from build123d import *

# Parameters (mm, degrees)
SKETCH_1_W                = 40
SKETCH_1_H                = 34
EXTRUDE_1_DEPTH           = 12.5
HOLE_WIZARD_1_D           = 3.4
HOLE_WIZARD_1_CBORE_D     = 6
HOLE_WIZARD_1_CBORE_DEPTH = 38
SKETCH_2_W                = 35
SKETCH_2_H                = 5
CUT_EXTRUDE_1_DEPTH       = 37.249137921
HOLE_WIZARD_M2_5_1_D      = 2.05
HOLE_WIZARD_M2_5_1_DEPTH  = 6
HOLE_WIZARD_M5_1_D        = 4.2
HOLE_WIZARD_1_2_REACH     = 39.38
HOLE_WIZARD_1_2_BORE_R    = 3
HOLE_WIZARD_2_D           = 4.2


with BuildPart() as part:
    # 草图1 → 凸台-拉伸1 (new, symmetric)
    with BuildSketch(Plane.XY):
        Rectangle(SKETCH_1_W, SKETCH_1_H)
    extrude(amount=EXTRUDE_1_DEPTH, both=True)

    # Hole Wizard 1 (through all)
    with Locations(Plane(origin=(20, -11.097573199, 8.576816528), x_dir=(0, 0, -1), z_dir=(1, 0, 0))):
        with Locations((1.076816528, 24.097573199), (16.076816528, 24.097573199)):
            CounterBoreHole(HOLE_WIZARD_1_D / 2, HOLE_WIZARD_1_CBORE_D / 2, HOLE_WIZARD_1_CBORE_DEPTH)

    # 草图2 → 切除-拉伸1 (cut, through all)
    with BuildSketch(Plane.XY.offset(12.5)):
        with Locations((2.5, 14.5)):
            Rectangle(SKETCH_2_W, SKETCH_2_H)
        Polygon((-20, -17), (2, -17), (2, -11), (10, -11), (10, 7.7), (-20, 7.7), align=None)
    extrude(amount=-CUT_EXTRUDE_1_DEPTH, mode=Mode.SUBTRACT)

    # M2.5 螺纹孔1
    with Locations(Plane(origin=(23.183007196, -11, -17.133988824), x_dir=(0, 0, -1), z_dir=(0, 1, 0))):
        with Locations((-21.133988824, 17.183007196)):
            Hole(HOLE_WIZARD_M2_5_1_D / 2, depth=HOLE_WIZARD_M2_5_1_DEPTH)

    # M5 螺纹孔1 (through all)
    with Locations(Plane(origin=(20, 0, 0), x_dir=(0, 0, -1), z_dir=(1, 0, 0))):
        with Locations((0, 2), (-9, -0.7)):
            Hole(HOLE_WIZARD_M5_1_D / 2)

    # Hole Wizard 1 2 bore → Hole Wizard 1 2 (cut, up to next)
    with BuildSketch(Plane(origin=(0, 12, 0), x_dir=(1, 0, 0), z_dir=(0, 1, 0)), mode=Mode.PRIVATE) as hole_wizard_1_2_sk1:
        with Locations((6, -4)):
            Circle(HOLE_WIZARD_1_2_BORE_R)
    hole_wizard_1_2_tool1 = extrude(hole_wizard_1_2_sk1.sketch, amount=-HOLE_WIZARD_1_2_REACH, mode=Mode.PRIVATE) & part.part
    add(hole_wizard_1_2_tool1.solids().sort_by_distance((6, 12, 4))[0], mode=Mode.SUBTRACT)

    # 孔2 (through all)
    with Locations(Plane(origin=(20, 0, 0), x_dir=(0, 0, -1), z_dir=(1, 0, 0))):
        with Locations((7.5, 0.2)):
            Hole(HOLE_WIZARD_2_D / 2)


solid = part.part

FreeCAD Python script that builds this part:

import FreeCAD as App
import Part
import Sketcher

doc = App.newDocument("Part")
params = doc.addObject("Spreadsheet::Sheet", "Params")
for row, (alias, value) in enumerate([
    ("sketch1_width", "40 mm"),
    ("sketch1_height", "34 mm"),
    ("pad1_length", "25 mm"),
    ("sketch2_diameter", "3.4 mm"),
    ("hole_diameter", "3.4 mm"),
    ("hole_cbore_diameter", "6 mm"),
    ("hole_cbore_depth", "38 mm"),
    ("sketch3_width", "35 mm"),
    ("sketch3_width2", "22 mm"),
    ("sketch3_width3", "8 mm"),
    ("sketch3_height", "5 mm"),
    ("sketch3_height2", "6 mm"),
    ("sketch4_diameter", "2.05 mm"),
    ("hole2_diameter", "2.05 mm"),
    ("hole2_depth", "6 mm"),
    ("sketch5_diameter", "4.2 mm"),
    ("hole3_diameter", "4.2 mm"),
    ("sketch6_diameter", "6 mm"),
    ("sketch7_diameter", "4.2 mm"),
    ("hole4_diameter", "4.2 mm"),
], start=1):
    params.set(f"A{row}", alias)
    params.set(f"B{row}", "=" + value)
    params.setAlias(f"B{row}", alias)

body = doc.addObject("PartDesign::Body", "Body")

sketch1 = doc.addObject("Sketcher::SketchObject", "Sketch")
body.addObject(sketch1)
sketch1.AttachmentSupport = (doc.XY_Plane, [""])
sketch1.MapMode = "FlatFace"
sketch1.addGeometry([
    Part.LineSegment(App.Vector(-20, 17, 0), App.Vector(-20, -17, 0)),
    Part.LineSegment(App.Vector(-20, -17, 0), App.Vector(20, -17, 0)),
    Part.LineSegment(App.Vector(20, -17, 0), App.Vector(20, 17, 0)),
    Part.LineSegment(App.Vector(20, 17, 0), App.Vector(-20, 17, 0)),
], False)
sketch1.addConstraint([
    Sketcher.Constraint("Coincident", 0, 2, 1, 1),
    Sketcher.Constraint("Coincident", 1, 2, 2, 1),
    Sketcher.Constraint("Coincident", 2, 2, 3, 1),
    Sketcher.Constraint("Coincident", 3, 2, 0, 1),
    Sketcher.Constraint("Vertical", 0),
    Sketcher.Constraint("Horizontal", 1),
    Sketcher.Constraint("Vertical", 2),
    Sketcher.Constraint("Horizontal", 3),
    Sketcher.Constraint("Symmetric", 0, 2, 2, 2, -1, 1),
    Sketcher.Constraint("DistanceX", 1, 1, 1, 2, 40.0),
    Sketcher.Constraint("DistanceY", 0, 2, 0, 1, 34.0),
])
sketch1.setExpression("Constraints[9]", "Params.sketch1_width")
sketch1.setExpression("Constraints[10]", "Params.sketch1_height")
pad1 = doc.addObject("PartDesign::Pad", "Pad")
body.addObject(pad1)
pad1.Profile = sketch1
pad1.setExpression("Length", "Params.pad1_length")
pad1.Midplane = True

sketch2 = doc.addObject("Sketcher::SketchObject", "Sketch001")
body.addObject(sketch2)
sketch2.AttachmentSupport = (doc.YZ_Plane, [""])
sketch2.MapMode = "FlatFace"
sketch2.AttachmentOffset = App.Placement(App.Vector(0, 0, 20), App.Rotation())
sketch2.addGeometry([
    Part.Circle(App.Vector(13, 7.5, 0), App.Vector(0, 0, 1), 1.7),
    Part.Circle(App.Vector(13, -7.5, 0), App.Vector(0, 0, 1), 1.7),
], False)
sketch2.addConstraint([
    Sketcher.Constraint("Equal", 0, 1),
    Sketcher.Constraint("Symmetric", 0, 3, 1, 3, -1),
    Sketcher.Constraint("Diameter", 0, 3.4),
    Sketcher.Constraint("DistanceX", -1, 1, 0, 3, 13.0),
    Sketcher.Constraint("DistanceY", 1, 3, 0, 3, 15.0),
])
sketch2.setExpression("Constraints[2]", "Params.sketch2_diameter")
doc.recompute()
hole = doc.addObject("PartDesign::Hole", "Hole")
body.addObject(hole)
hole.Profile = sketch2
hole.ThreadType = "None"
hole.setExpression("Diameter", "Params.hole_diameter")
hole.DepthType = "ThroughAll"
hole.HoleCutType = "Counterbore"
hole.setExpression("HoleCutDiameter", "Params.hole_cbore_diameter")
hole.setExpression("HoleCutDepth", "Params.hole_cbore_depth")

sketch3 = doc.addObject("Sketcher::SketchObject", "Sketch002")
body.addObject(sketch3)
sketch3.AttachmentSupport = (doc.XY_Plane, [""])
sketch3.MapMode = "FlatFace"
sketch3.AttachmentOffset = App.Placement(App.Vector(0, 0, 12.5), App.Rotation())
sketch3.addGeometry([
    Part.LineSegment(App.Vector(-15, 17, 0), App.Vector(-15, 12, 0)),
    Part.LineSegment(App.Vector(-15, 12, 0), App.Vector(20, 12, 0)),
    Part.LineSegment(App.Vector(20, 12, 0), App.Vector(20, 17, 0)),
    Part.LineSegment(App.Vector(20, 17, 0), App.Vector(-15, 17, 0)),
    Part.LineSegment(App.Vector(-20, -17, 0), App.Vector(2, -17, 0)),
    Part.LineSegment(App.Vector(2, -17, 0), App.Vector(2, -11, 0)),
    Part.LineSegment(App.Vector(2, -11, 0), App.Vector(10, -11, 0)),
    Part.LineSegment(App.Vector(10, -11, 0), App.Vector(10, 7.7, 0)),
    Part.LineSegment(App.Vector(10, 7.7, 0), App.Vector(-20, 7.7, 0)),
    Part.LineSegment(App.Vector(-20, 7.7, 0), App.Vector(-20, -17, 0)),
], False)
sketch3.addConstraint([
    Sketcher.Constraint("Coincident", 0, 2, 1, 1),
    Sketcher.Constraint("Coincident", 1, 2, 2, 1),
    Sketcher.Constraint("Coincident", 2, 2, 3, 1),
    Sketcher.Constraint("Coincident", 3, 2, 0, 1),
    Sketcher.Constraint("Coincident", 4, 2, 5, 1),
    Sketcher.Constraint("Coincident", 5, 2, 6, 1),
    Sketcher.Constraint("Coincident", 6, 2, 7, 1),
    Sketcher.Constraint("Coincident", 7, 2, 8, 1),
    Sketcher.Constraint("Coincident", 8, 2, 9, 1),
    Sketcher.Constraint("Coincident", 9, 2, 4, 1),
    Sketcher.Constraint("Vertical", 0),
    Sketcher.Constraint("Horizontal", 1),
    Sketcher.Constraint("Vertical", 2),
    Sketcher.Constraint("Horizontal", 3),
    Sketcher.Constraint("Horizontal", 4),
    Sketcher.Constraint("Vertical", 5),
    Sketcher.Constraint("Horizontal", 6),
    Sketcher.Constraint("Vertical", 7),
    Sketcher.Constraint("Horizontal", 8),
    Sketcher.Constraint("Vertical", 9),
    Sketcher.Constraint("Symmetric", 2, 2, 9, 2, -1, 1),
    Sketcher.Constraint("DistanceX", 1, 1, 1, 2, 35.0),
    Sketcher.Constraint("DistanceX", 4, 1, 4, 2, 22.0),
    Sketcher.Constraint("DistanceX", 6, 1, 6, 2, 8.0),
    Sketcher.Constraint("DistanceY", 0, 2, 0, 1, 5.0),
    Sketcher.Constraint("DistanceY", 5, 1, 5, 2, 6.0),
    Sketcher.Constraint("DistanceY", 7, 1, 7, 2, 18.7),
    Sketcher.Constraint("DistanceX", 0, 2, -1, 1, 15.0),
    Sketcher.Constraint("DistanceY", -1, 1, 0, 2, 12.0),
])
sketch3.setExpression("Constraints[21]", "Params.sketch3_width")
sketch3.setExpression("Constraints[22]", "Params.sketch3_width2")
sketch3.setExpression("Constraints[23]", "Params.sketch3_width3")
sketch3.setExpression("Constraints[24]", "Params.sketch3_height")
sketch3.setExpression("Constraints[25]", "Params.sketch3_height2")
pocket1 = doc.addObject("PartDesign::Pocket", "Pocket")
body.addObject(pocket1)
pocket1.Profile = sketch3
pocket1.Type = "ThroughAll"

sketch4 = doc.addObject("Sketcher::SketchObject", "Sketch003")
body.addObject(sketch4)
sketch4.AttachmentSupport = (doc.XZ_Plane, [""])
sketch4.MapMode = "FlatFace"
sketch4.AttachmentOffset = App.Placement(App.Vector(0, 0, 11), App.Rotation())
sketch4.addGeometry(Part.Circle(App.Vector(6, 4, 0), App.Vector(0, 0, 1), 1.025), False)
sketch4.addConstraint([
    Sketcher.Constraint("Diameter", 0, 2.05),
    Sketcher.Constraint("DistanceX", -1, 1, 0, 3, 6.0),
    Sketcher.Constraint("DistanceY", -1, 1, 0, 3, 4.0),
])
sketch4.setExpression("Constraints[0]", "Params.sketch4_diameter")
doc.recompute()
hole2 = doc.addObject("PartDesign::Hole", "Hole001")
body.addObject(hole2)
hole2.Profile = sketch4
hole2.ThreadType = "None"
hole2.setExpression("Diameter", "Params.hole2_diameter")
hole2.DepthType = "Dimension"
hole2.setExpression("Depth", "Params.hole2_depth")
hole2.DrillPoint = "Flat"
hole2.Reversed = True

sketch5 = doc.addObject("Sketcher::SketchObject", "Sketch004")
body.addObject(sketch5)
sketch5.AttachmentSupport = (doc.YZ_Plane, [""])
sketch5.MapMode = "FlatFace"
sketch5.AttachmentOffset = App.Placement(App.Vector(0, 0, 20), App.Rotation())
sketch5.addGeometry([
    Part.Circle(App.Vector(2, 0, 0), App.Vector(0, 0, 1), 2.1),
    Part.Circle(App.Vector(-0.7, 9, 0), App.Vector(0, 0, 1), 2.1),
], False)
sketch5.addConstraint([
    Sketcher.Constraint("Equal", 0, 1),
    Sketcher.Constraint("PointOnObject", 0, 3, -1),
    Sketcher.Constraint("Diameter", 0, 4.2),
    Sketcher.Constraint("DistanceX", -1, 1, 0, 3, 2.0),
    Sketcher.Constraint("DistanceY", -1, 1, 1, 3, 9.0),
    Sketcher.Constraint("DistanceX", 1, 3, -1, 1, 0.7),
])
sketch5.setExpression("Constraints[2]", "Params.sketch5_diameter")
doc.recompute()
hole3 = doc.addObject("PartDesign::Hole", "Hole002")
body.addObject(hole3)
hole3.Profile = sketch5
hole3.ThreadType = "None"
hole3.setExpression("Diameter", "Params.hole3_diameter")
hole3.DepthType = "ThroughAll"

sketch6 = doc.addObject("Sketcher::SketchObject", "Sketch005")
body.addObject(sketch6)
sketch6.AttachmentSupport = (doc.XZ_Plane, [""])
sketch6.MapMode = "FlatFace"
sketch6.AttachmentOffset = App.Placement(App.Vector(0, 0, -12), App.Rotation())
sketch6.addGeometry(Part.Circle(App.Vector(6, 4, 0), App.Vector(0, 0, 1), 3), False)
sketch6.addConstraint([
    Sketcher.Constraint("Diameter", 0, 6.0),
    Sketcher.Constraint("DistanceX", -1, 1, 0, 3, 6.0),
    Sketcher.Constraint("DistanceY", -1, 1, 0, 3, 4.0),
])
sketch6.setExpression("Constraints[0]", "Params.sketch6_diameter")
pocket2 = doc.addObject("PartDesign::Pocket", "Pocket001")
body.addObject(pocket2)
pocket2.Profile = sketch6
pocket2.Type = "UpToFirst"
pocket2.Reversed = True

sketch7 = doc.addObject("Sketcher::SketchObject", "Sketch006")
body.addObject(sketch7)
sketch7.AttachmentSupport = (doc.YZ_Plane, [""])
sketch7.MapMode = "FlatFace"
sketch7.AttachmentOffset = App.Placement(App.Vector(0, 0, 20), App.Rotation())
sketch7.addGeometry(Part.Circle(App.Vector(0.2, -7.5, 0), App.Vector(0, 0, 1), 2.1), False)
sketch7.addConstraint([
    Sketcher.Constraint("Diameter", 0, 4.2),
    Sketcher.Constraint("DistanceX", -1, 1, 0, 3, 0.2),
    Sketcher.Constraint("DistanceY", 0, 3, -1, 1, 7.5),
])
sketch7.setExpression("Constraints[0]", "Params.sketch7_diameter")
doc.recompute()
hole4 = doc.addObject("PartDesign::Hole", "Hole003")
body.addObject(hole4)
hole4.Profile = sketch7
hole4.ThreadType = "None"
hole4.setExpression("Diameter", "Params.hole4_diameter")
hole4.DepthType = "ThroughAll"

doc.recompute()
